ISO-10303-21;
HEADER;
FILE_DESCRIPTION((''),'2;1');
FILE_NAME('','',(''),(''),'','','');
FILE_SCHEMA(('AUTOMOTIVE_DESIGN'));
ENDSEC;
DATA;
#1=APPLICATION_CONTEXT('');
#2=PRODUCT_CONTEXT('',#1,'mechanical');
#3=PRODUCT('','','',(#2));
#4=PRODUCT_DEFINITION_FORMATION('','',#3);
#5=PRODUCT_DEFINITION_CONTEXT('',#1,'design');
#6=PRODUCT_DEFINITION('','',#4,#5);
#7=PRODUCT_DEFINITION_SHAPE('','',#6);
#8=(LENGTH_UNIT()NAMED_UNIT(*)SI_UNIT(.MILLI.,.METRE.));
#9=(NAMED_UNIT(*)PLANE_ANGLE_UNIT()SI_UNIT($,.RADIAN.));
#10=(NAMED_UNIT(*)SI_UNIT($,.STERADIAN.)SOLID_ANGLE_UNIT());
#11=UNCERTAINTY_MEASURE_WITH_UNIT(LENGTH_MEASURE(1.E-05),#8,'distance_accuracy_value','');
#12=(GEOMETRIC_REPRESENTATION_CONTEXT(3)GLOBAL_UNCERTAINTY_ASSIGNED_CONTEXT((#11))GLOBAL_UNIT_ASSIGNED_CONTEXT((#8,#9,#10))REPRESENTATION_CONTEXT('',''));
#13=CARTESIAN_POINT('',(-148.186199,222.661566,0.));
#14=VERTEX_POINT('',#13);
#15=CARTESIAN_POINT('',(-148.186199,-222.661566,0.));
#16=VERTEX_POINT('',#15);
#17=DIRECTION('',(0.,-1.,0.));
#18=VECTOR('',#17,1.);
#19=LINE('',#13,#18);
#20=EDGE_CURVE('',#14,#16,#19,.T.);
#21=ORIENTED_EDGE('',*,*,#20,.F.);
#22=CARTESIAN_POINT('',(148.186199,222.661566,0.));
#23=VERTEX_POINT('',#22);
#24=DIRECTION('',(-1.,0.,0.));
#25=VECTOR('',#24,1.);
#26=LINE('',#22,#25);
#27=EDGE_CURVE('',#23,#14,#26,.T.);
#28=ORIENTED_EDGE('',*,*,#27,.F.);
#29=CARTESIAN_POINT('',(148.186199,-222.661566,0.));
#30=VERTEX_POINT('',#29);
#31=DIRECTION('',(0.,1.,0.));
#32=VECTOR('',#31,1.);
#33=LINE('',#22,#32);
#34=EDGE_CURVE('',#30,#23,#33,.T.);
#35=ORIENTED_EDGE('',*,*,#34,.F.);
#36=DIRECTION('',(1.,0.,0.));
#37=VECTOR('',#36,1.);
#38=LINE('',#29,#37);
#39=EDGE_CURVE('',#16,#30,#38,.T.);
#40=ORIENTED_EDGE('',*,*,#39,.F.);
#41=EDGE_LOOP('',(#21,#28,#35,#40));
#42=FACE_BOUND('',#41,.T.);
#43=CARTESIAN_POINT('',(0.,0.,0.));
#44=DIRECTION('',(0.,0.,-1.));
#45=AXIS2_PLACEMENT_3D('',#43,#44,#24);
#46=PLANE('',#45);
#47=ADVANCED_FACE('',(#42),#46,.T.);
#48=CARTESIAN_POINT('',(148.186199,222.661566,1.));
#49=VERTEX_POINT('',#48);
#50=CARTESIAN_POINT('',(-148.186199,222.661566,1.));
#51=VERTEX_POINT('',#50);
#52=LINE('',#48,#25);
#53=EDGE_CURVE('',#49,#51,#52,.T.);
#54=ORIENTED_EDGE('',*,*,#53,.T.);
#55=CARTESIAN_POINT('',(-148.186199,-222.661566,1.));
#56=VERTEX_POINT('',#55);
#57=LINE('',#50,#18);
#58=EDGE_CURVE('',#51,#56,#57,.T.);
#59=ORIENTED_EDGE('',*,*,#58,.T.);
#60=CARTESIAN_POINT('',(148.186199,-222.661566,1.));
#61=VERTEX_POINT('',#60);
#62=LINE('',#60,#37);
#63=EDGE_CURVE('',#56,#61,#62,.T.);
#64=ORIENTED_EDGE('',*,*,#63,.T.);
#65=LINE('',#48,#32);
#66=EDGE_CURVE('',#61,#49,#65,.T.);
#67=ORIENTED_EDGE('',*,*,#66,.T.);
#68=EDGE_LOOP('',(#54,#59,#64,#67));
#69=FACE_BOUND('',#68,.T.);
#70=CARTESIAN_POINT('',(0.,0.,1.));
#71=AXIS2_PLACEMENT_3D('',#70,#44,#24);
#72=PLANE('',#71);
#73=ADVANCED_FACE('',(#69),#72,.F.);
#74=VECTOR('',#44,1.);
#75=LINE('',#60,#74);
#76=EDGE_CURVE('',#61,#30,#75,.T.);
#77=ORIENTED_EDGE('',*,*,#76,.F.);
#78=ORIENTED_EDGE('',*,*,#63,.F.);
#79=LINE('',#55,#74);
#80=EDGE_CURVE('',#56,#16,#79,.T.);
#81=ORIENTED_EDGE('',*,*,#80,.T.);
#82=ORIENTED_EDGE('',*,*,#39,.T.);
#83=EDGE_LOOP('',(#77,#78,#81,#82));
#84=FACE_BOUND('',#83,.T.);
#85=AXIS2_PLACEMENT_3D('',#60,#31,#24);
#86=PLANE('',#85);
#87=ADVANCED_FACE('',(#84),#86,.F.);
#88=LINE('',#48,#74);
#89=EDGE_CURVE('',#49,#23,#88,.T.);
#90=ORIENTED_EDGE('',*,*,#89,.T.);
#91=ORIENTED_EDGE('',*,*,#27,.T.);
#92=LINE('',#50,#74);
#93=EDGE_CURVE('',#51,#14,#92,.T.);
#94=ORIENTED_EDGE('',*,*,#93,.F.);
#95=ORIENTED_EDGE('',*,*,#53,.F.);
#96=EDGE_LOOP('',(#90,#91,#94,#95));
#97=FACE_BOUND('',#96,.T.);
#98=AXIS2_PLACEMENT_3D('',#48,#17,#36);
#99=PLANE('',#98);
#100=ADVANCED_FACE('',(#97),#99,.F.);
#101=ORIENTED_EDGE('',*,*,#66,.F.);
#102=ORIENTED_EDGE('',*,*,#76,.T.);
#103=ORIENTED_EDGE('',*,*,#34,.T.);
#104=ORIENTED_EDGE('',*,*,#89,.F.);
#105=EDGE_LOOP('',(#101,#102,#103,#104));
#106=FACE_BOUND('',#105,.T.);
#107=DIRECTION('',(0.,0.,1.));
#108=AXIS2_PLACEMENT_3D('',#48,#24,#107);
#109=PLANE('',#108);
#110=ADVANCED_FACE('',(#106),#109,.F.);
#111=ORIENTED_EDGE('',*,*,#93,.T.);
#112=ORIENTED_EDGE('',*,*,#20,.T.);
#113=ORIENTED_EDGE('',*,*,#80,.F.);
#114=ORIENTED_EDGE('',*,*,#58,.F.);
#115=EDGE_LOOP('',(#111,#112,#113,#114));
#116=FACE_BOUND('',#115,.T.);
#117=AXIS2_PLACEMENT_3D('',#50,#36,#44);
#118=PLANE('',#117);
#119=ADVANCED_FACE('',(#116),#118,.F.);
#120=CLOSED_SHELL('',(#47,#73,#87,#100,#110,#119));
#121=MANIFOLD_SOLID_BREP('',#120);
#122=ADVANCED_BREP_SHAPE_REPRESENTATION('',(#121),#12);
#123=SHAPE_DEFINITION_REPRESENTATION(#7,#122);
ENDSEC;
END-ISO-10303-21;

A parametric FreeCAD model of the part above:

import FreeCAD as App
import Part
import Sketcher
from FreeCAD import Vector

doc = App.newDocument("Part")
body = doc.addObject("PartDesign::Body", "Body")

# Sketch on XY plane
sketch1 = body.newObject("Sketcher::SketchObject", "Sketch")
sketch1.AttachmentSupport = (doc.getObject("XY_Plane"), [""])
sketch1.MapMode = "FlatFace"
sketch1.addGeometry([
    Part.LineSegment(Vector(-148, 223, 0), Vector(-148, -223, 0)),
    Part.LineSegment(Vector(-148, -223, 0), Vector(148, -223, 0)),
    Part.LineSegment(Vector(148, -223, 0), Vector(148, 223, 0)),
    Part.LineSegment(Vector(148, 223, 0), Vector(-148, 223, 0)),
], False)
sketch1.addConstraint([
    Sketcher.Constraint("Coincident", 0, 2, 1, 1),
    Sketcher.Constraint("Coincident", 1, 2, 2, 1),
    Sketcher.Constraint("Coincident", 2, 2, 3, 1),
    Sketcher.Constraint("Coincident", 3, 2, 0, 1),
    Sketcher.Constraint("Vertical", 0),
    Sketcher.Constraint("Horizontal", 1),
    Sketcher.Constraint("Vertical", 2),
    Sketcher.Constraint("Horizontal", 3),
    Sketcher.Constraint("Symmetric", 0, 2, 2, 2, -1, 1),
    Sketcher.Constraint("DistanceX", 1, 1, 1, 2, 296.372398),
    Sketcher.Constraint("DistanceY", 0, 2, 0, 1, 445.323132),
])
pad1 = body.newObject("PartDesign::Pad", "Pad")
pad1.Profile = sketch1
pad1.Length = 1

doc.recompute()
